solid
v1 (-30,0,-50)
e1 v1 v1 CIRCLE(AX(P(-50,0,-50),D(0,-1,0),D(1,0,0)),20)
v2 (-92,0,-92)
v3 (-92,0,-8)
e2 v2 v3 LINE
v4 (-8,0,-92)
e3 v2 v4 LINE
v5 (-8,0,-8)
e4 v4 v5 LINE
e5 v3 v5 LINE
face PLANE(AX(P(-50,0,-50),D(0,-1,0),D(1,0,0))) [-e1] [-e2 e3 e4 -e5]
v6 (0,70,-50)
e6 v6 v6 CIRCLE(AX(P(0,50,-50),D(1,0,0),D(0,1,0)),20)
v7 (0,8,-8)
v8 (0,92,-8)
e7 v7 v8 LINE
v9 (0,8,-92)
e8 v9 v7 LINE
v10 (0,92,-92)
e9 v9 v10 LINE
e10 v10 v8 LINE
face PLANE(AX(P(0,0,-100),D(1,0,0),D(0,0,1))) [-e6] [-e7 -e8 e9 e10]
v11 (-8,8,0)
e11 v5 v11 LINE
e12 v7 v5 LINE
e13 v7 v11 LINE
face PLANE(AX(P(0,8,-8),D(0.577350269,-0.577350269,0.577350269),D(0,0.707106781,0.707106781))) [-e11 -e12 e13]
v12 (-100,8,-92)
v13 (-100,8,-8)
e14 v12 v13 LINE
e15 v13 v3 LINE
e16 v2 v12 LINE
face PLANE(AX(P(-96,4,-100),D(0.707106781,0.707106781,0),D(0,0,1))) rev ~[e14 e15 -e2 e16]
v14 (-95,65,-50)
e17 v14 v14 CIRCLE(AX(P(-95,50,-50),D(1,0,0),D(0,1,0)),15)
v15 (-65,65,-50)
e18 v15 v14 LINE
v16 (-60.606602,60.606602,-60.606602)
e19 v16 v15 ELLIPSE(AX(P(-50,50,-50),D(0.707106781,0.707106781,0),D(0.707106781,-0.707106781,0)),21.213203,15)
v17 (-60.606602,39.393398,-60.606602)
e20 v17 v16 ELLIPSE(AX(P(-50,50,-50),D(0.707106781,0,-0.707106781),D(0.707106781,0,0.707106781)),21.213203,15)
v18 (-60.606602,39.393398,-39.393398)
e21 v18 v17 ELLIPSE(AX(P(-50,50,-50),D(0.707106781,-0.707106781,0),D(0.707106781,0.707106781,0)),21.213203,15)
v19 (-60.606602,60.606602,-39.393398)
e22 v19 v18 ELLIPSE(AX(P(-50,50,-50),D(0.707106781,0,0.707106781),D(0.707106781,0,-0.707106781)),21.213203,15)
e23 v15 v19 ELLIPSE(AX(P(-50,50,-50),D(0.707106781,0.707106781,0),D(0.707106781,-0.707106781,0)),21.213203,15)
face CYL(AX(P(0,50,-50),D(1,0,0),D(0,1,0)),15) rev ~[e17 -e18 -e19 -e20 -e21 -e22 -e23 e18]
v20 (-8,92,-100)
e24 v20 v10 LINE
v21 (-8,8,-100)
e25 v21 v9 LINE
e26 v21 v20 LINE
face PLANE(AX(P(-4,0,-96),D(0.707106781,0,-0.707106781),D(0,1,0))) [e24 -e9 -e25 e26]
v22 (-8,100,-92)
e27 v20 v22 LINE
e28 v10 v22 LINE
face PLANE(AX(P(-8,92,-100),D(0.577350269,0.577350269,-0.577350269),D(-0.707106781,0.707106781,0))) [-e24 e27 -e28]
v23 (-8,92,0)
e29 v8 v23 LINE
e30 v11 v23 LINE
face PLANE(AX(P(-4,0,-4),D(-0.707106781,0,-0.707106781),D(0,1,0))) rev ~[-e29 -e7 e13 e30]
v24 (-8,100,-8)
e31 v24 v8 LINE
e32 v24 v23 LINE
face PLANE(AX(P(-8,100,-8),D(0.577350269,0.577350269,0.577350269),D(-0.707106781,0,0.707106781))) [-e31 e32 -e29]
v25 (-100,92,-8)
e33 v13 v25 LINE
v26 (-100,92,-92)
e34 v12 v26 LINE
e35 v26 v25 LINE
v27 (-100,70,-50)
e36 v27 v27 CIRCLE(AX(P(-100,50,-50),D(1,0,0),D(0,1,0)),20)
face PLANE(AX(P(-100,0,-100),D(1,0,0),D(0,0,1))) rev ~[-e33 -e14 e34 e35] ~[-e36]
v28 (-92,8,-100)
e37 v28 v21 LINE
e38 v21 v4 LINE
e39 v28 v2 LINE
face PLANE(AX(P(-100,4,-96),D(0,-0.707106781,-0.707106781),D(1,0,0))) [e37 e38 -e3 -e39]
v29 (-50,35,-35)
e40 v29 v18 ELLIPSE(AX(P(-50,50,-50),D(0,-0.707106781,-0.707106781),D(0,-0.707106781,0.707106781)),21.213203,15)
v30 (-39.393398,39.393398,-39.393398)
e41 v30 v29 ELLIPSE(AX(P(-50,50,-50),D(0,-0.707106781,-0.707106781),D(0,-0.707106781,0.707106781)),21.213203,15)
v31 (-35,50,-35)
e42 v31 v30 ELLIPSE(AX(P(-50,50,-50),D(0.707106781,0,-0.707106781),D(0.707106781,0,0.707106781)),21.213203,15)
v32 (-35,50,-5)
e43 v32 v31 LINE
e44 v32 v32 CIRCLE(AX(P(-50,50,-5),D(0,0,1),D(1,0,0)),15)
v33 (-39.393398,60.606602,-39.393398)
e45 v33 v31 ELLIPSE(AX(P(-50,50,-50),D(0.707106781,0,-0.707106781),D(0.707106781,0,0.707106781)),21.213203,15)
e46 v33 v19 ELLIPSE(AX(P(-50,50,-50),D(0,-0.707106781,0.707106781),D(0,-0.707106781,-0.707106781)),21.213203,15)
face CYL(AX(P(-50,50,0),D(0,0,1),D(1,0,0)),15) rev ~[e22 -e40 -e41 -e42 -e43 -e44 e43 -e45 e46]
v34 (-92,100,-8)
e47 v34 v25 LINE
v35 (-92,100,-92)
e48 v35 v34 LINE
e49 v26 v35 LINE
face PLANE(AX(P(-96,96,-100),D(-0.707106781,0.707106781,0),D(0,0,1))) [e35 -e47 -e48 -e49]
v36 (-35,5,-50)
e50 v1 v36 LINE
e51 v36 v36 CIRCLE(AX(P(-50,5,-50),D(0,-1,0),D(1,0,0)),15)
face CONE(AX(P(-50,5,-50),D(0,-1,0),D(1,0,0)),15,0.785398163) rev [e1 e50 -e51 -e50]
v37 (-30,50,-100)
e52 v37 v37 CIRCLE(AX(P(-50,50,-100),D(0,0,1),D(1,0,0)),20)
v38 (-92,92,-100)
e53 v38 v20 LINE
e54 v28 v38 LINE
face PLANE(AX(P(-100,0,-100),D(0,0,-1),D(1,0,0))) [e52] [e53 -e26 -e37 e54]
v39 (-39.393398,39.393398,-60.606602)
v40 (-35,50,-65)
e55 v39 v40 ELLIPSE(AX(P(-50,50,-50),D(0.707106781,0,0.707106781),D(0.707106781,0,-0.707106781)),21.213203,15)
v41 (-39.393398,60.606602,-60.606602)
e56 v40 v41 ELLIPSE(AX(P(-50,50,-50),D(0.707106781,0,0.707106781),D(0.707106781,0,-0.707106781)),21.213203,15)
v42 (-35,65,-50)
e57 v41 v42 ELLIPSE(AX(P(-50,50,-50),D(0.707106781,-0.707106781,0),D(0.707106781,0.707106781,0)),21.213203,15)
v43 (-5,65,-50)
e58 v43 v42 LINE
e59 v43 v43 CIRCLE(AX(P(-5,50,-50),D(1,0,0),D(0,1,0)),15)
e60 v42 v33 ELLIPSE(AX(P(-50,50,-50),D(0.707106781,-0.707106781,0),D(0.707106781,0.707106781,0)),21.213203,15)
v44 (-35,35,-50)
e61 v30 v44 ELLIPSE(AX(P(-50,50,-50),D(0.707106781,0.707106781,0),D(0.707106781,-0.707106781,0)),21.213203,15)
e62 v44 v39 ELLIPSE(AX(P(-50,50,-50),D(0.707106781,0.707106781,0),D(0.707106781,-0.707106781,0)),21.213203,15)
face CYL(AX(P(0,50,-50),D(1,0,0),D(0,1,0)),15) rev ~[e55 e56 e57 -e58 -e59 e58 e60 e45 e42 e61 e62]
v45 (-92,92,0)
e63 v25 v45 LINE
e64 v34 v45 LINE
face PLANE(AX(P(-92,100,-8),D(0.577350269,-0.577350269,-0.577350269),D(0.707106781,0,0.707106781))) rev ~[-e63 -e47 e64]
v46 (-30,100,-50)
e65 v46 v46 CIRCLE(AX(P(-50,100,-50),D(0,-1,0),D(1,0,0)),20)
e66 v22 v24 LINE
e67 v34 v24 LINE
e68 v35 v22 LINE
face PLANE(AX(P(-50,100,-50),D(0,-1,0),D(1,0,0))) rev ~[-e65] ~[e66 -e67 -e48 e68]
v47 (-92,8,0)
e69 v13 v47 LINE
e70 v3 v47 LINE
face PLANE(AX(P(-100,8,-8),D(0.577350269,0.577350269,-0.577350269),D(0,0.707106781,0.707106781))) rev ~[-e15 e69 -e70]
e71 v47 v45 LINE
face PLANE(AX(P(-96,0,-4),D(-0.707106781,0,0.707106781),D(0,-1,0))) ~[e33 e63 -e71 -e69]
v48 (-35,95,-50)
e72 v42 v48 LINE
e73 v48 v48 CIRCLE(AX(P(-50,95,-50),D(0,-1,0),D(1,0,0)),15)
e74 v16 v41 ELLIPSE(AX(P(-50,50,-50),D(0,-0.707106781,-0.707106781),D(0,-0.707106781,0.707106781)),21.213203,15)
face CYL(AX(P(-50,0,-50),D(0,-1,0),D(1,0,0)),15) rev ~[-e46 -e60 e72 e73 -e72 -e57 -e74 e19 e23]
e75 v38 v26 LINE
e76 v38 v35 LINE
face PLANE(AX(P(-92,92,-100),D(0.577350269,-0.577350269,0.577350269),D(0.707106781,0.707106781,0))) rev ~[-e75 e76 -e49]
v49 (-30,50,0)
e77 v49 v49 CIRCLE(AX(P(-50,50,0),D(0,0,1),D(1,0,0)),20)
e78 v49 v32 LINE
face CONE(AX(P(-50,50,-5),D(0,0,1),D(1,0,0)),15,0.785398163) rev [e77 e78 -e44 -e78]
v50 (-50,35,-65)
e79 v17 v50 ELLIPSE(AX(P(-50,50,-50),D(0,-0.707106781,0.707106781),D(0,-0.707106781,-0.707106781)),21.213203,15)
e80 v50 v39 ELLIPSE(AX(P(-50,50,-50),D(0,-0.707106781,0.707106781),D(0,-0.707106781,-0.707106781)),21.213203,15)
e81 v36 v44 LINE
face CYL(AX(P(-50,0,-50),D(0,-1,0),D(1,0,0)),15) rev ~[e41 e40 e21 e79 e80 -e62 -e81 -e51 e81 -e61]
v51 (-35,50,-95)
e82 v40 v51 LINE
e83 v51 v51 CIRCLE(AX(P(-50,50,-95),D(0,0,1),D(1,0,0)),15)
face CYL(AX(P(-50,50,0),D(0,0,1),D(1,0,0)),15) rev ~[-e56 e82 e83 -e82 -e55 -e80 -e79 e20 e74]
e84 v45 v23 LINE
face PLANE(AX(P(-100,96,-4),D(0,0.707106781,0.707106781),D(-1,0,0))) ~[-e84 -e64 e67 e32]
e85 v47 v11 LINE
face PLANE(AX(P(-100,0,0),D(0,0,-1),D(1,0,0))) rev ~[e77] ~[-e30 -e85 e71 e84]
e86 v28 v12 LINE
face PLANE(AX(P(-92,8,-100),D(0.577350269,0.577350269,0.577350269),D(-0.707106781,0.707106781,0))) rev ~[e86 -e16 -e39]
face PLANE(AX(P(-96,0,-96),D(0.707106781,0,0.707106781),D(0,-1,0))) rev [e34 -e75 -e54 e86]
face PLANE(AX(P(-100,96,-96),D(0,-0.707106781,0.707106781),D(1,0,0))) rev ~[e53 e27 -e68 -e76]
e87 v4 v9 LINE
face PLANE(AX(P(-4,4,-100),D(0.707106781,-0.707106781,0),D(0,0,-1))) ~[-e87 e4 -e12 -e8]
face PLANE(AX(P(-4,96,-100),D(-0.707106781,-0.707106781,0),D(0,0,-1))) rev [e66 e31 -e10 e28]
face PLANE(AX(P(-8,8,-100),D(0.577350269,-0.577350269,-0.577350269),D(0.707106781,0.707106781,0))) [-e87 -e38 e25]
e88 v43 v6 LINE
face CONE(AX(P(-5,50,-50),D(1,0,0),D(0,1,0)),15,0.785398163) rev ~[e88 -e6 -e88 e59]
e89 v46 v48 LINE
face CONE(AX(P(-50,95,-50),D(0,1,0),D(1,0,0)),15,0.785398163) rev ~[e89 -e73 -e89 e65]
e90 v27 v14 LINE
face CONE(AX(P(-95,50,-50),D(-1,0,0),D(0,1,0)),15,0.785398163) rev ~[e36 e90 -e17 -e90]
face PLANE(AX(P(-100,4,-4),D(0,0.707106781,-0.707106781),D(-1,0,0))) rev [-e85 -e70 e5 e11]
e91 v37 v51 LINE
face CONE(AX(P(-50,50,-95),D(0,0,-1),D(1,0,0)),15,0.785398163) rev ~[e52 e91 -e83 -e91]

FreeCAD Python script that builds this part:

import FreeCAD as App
import Part
import Sketcher

V = App.Vector
Q = App.Units.Quantity


def edges_at(feature, points):
    """Names of the edges that pass closest to the given points."""
    edges = feature.Shape.Edges
    near = lambda p: min(range(len(edges)), key=lambda i: edges[i].distToShape(Part.Vertex(*p))[0])
    return sorted({f"Edge{near(p) + 1}" for p in points})


def add_polygon(sketch, points):
    """Adds a closed chain of lines whose ends are joined by coincident constraints."""
    first, n = sketch.GeometryCount, len(points)
    for a, b in zip(points, points[1:] + points[:1]):
        sketch.addGeometry(Part.LineSegment(App.Vector(*a, 0), App.Vector(*b, 0)), False)
    for i in range(n):
        sketch.addConstraint(Sketcher.Constraint("Coincident", first + i, 2, first + (i + 1) % n, 1))

doc = App.newDocument("Part")
body = doc.addObject("PartDesign::Body", "Body")

sketch1 = body.newObject("Sketcher::SketchObject", "Sketch")
sketch1.AttachmentSupport = (doc.getObject("XZ_Plane"), [""])
sketch1.MapMode = "FlatFace"
add_polygon(sketch1, [(-100, 0), (-100, -100), (0, -100), (0, 0)])
sketch1.addConstraint([
    Sketcher.Constraint("Vertical", 0),
    Sketcher.Constraint("Horizontal", 1),
    Sketcher.Constraint("Vertical", 2),
    Sketcher.Constraint("Horizontal", 3),
    Sketcher.Constraint("Coincident", 2, 2, -1, 1),
    Sketcher.Constraint("Equal", 3, 0),
    Sketcher.Constraint("DistanceX", 1, 1, 1, 2, Q("100 mm")),
])
pad1 = body.newObject("PartDesign::Pad", "Pad")
pad1.Profile = sketch1
pad1.Length = 100
pad1.Reversed = True

sketch2 = body.newObject("Sketcher::SketchObject", "Sketch001")
sketch2.AttachmentSupport = (doc.getObject("YZ_Plane"), [""])
sketch2.MapMode = "FlatFace"
sketch2.addGeometry(Part.Circle(V(50, -50, 0), V(0, 0, 1), 15), False)
sketch2.addConstraint([
    Sketcher.Constraint("Diameter", 0, Q("30 mm")),
    Sketcher.Constraint("DistanceX", -1, 1, 0, 3, Q("50 mm")),
    Sketcher.Constraint("DistanceY", 0, 3, -1, 1, Q("50 mm")),
])
pocket1 = body.newObject("PartDesign::Pocket", "Pocket")
pocket1.Profile = sketch2
pocket1.Length = 300

sketch3 = body.newObject("Sketcher::SketchObject", "Sketch002")
sketch3.AttachmentSupport = (doc.getObject("XZ_Plane"), [""])
sketch3.MapMode = "FlatFace"
sketch3.addGeometry(Part.Circle(V(-50, -50, 0), V(0, 0, 1), 15), False)
sketch3.addConstraint([
    Sketcher.Constraint("Diameter", 0, Q("30 mm")),
    Sketcher.Constraint("DistanceX", 0, 3, -1, 1, Q("50 mm")),
    Sketcher.Constraint("DistanceY", 0, 3, -1, 1, Q("50 mm")),
])
pocket2 = body.newObject("PartDesign::Pocket", "Pocket001")
pocket2.Profile = sketch3
pocket2.Length = 300

sketch4 = body.newObject("Sketcher::SketchObject", "Sketch003")
sketch4.AttachmentSupport = (doc.getObject("XY_Plane"), [""])
sketch4.MapMode = "FlatFace"
sketch4.addGeometry(Part.Circle(V(-50, 50, 0), V(0, 0, 1), 15), False)
sketch4.addConstraint([
    Sketcher.Constraint("Diameter", 0, Q("30 mm")),
    Sketcher.Constraint("DistanceX", 0, 3, -1, 1, Q("50 mm")),
    Sketcher.Constraint("DistanceY", -1, 1, 0, 3, Q("50 mm")),
])
pocket3 = body.newObject("PartDesign::Pocket", "Pocket002")
pocket3.Profile = sketch4
pocket3.Length = 300
doc.recompute()

chamfer = body.newObject("PartDesign::Chamfer", "Chamfer")
chamfer.Base = (pocket3, edges_at(pocket3, [
    (-50, 0, 0),
    (0, 0, -50),
    (-100, 0, -50),
    (-50, 0, -100),
    (-100, 50, 0),
    (-100, 100, -50),
    (-100, 50, -100),
    (0, 50, 0),
    (0, 100, -50),
    (0, 50, -100),
    (-50, 100, -100),
    (-50, 100, 0),
]))
chamfer.Size = 8
doc.recompute()

chamfer2 = body.newObject("PartDesign::Chamfer", "Chamfer001")
chamfer2.Base = (chamfer, edges_at(chamfer, [
    (-65, 0, -50),
    (0, 35, -50),
    (-65, 50, 0),
    (-100, 35, -50),
    (-65, 50, -100),
    (-65, 100, -50),
]))
chamfer2.Size = 5

doc.recompute()
